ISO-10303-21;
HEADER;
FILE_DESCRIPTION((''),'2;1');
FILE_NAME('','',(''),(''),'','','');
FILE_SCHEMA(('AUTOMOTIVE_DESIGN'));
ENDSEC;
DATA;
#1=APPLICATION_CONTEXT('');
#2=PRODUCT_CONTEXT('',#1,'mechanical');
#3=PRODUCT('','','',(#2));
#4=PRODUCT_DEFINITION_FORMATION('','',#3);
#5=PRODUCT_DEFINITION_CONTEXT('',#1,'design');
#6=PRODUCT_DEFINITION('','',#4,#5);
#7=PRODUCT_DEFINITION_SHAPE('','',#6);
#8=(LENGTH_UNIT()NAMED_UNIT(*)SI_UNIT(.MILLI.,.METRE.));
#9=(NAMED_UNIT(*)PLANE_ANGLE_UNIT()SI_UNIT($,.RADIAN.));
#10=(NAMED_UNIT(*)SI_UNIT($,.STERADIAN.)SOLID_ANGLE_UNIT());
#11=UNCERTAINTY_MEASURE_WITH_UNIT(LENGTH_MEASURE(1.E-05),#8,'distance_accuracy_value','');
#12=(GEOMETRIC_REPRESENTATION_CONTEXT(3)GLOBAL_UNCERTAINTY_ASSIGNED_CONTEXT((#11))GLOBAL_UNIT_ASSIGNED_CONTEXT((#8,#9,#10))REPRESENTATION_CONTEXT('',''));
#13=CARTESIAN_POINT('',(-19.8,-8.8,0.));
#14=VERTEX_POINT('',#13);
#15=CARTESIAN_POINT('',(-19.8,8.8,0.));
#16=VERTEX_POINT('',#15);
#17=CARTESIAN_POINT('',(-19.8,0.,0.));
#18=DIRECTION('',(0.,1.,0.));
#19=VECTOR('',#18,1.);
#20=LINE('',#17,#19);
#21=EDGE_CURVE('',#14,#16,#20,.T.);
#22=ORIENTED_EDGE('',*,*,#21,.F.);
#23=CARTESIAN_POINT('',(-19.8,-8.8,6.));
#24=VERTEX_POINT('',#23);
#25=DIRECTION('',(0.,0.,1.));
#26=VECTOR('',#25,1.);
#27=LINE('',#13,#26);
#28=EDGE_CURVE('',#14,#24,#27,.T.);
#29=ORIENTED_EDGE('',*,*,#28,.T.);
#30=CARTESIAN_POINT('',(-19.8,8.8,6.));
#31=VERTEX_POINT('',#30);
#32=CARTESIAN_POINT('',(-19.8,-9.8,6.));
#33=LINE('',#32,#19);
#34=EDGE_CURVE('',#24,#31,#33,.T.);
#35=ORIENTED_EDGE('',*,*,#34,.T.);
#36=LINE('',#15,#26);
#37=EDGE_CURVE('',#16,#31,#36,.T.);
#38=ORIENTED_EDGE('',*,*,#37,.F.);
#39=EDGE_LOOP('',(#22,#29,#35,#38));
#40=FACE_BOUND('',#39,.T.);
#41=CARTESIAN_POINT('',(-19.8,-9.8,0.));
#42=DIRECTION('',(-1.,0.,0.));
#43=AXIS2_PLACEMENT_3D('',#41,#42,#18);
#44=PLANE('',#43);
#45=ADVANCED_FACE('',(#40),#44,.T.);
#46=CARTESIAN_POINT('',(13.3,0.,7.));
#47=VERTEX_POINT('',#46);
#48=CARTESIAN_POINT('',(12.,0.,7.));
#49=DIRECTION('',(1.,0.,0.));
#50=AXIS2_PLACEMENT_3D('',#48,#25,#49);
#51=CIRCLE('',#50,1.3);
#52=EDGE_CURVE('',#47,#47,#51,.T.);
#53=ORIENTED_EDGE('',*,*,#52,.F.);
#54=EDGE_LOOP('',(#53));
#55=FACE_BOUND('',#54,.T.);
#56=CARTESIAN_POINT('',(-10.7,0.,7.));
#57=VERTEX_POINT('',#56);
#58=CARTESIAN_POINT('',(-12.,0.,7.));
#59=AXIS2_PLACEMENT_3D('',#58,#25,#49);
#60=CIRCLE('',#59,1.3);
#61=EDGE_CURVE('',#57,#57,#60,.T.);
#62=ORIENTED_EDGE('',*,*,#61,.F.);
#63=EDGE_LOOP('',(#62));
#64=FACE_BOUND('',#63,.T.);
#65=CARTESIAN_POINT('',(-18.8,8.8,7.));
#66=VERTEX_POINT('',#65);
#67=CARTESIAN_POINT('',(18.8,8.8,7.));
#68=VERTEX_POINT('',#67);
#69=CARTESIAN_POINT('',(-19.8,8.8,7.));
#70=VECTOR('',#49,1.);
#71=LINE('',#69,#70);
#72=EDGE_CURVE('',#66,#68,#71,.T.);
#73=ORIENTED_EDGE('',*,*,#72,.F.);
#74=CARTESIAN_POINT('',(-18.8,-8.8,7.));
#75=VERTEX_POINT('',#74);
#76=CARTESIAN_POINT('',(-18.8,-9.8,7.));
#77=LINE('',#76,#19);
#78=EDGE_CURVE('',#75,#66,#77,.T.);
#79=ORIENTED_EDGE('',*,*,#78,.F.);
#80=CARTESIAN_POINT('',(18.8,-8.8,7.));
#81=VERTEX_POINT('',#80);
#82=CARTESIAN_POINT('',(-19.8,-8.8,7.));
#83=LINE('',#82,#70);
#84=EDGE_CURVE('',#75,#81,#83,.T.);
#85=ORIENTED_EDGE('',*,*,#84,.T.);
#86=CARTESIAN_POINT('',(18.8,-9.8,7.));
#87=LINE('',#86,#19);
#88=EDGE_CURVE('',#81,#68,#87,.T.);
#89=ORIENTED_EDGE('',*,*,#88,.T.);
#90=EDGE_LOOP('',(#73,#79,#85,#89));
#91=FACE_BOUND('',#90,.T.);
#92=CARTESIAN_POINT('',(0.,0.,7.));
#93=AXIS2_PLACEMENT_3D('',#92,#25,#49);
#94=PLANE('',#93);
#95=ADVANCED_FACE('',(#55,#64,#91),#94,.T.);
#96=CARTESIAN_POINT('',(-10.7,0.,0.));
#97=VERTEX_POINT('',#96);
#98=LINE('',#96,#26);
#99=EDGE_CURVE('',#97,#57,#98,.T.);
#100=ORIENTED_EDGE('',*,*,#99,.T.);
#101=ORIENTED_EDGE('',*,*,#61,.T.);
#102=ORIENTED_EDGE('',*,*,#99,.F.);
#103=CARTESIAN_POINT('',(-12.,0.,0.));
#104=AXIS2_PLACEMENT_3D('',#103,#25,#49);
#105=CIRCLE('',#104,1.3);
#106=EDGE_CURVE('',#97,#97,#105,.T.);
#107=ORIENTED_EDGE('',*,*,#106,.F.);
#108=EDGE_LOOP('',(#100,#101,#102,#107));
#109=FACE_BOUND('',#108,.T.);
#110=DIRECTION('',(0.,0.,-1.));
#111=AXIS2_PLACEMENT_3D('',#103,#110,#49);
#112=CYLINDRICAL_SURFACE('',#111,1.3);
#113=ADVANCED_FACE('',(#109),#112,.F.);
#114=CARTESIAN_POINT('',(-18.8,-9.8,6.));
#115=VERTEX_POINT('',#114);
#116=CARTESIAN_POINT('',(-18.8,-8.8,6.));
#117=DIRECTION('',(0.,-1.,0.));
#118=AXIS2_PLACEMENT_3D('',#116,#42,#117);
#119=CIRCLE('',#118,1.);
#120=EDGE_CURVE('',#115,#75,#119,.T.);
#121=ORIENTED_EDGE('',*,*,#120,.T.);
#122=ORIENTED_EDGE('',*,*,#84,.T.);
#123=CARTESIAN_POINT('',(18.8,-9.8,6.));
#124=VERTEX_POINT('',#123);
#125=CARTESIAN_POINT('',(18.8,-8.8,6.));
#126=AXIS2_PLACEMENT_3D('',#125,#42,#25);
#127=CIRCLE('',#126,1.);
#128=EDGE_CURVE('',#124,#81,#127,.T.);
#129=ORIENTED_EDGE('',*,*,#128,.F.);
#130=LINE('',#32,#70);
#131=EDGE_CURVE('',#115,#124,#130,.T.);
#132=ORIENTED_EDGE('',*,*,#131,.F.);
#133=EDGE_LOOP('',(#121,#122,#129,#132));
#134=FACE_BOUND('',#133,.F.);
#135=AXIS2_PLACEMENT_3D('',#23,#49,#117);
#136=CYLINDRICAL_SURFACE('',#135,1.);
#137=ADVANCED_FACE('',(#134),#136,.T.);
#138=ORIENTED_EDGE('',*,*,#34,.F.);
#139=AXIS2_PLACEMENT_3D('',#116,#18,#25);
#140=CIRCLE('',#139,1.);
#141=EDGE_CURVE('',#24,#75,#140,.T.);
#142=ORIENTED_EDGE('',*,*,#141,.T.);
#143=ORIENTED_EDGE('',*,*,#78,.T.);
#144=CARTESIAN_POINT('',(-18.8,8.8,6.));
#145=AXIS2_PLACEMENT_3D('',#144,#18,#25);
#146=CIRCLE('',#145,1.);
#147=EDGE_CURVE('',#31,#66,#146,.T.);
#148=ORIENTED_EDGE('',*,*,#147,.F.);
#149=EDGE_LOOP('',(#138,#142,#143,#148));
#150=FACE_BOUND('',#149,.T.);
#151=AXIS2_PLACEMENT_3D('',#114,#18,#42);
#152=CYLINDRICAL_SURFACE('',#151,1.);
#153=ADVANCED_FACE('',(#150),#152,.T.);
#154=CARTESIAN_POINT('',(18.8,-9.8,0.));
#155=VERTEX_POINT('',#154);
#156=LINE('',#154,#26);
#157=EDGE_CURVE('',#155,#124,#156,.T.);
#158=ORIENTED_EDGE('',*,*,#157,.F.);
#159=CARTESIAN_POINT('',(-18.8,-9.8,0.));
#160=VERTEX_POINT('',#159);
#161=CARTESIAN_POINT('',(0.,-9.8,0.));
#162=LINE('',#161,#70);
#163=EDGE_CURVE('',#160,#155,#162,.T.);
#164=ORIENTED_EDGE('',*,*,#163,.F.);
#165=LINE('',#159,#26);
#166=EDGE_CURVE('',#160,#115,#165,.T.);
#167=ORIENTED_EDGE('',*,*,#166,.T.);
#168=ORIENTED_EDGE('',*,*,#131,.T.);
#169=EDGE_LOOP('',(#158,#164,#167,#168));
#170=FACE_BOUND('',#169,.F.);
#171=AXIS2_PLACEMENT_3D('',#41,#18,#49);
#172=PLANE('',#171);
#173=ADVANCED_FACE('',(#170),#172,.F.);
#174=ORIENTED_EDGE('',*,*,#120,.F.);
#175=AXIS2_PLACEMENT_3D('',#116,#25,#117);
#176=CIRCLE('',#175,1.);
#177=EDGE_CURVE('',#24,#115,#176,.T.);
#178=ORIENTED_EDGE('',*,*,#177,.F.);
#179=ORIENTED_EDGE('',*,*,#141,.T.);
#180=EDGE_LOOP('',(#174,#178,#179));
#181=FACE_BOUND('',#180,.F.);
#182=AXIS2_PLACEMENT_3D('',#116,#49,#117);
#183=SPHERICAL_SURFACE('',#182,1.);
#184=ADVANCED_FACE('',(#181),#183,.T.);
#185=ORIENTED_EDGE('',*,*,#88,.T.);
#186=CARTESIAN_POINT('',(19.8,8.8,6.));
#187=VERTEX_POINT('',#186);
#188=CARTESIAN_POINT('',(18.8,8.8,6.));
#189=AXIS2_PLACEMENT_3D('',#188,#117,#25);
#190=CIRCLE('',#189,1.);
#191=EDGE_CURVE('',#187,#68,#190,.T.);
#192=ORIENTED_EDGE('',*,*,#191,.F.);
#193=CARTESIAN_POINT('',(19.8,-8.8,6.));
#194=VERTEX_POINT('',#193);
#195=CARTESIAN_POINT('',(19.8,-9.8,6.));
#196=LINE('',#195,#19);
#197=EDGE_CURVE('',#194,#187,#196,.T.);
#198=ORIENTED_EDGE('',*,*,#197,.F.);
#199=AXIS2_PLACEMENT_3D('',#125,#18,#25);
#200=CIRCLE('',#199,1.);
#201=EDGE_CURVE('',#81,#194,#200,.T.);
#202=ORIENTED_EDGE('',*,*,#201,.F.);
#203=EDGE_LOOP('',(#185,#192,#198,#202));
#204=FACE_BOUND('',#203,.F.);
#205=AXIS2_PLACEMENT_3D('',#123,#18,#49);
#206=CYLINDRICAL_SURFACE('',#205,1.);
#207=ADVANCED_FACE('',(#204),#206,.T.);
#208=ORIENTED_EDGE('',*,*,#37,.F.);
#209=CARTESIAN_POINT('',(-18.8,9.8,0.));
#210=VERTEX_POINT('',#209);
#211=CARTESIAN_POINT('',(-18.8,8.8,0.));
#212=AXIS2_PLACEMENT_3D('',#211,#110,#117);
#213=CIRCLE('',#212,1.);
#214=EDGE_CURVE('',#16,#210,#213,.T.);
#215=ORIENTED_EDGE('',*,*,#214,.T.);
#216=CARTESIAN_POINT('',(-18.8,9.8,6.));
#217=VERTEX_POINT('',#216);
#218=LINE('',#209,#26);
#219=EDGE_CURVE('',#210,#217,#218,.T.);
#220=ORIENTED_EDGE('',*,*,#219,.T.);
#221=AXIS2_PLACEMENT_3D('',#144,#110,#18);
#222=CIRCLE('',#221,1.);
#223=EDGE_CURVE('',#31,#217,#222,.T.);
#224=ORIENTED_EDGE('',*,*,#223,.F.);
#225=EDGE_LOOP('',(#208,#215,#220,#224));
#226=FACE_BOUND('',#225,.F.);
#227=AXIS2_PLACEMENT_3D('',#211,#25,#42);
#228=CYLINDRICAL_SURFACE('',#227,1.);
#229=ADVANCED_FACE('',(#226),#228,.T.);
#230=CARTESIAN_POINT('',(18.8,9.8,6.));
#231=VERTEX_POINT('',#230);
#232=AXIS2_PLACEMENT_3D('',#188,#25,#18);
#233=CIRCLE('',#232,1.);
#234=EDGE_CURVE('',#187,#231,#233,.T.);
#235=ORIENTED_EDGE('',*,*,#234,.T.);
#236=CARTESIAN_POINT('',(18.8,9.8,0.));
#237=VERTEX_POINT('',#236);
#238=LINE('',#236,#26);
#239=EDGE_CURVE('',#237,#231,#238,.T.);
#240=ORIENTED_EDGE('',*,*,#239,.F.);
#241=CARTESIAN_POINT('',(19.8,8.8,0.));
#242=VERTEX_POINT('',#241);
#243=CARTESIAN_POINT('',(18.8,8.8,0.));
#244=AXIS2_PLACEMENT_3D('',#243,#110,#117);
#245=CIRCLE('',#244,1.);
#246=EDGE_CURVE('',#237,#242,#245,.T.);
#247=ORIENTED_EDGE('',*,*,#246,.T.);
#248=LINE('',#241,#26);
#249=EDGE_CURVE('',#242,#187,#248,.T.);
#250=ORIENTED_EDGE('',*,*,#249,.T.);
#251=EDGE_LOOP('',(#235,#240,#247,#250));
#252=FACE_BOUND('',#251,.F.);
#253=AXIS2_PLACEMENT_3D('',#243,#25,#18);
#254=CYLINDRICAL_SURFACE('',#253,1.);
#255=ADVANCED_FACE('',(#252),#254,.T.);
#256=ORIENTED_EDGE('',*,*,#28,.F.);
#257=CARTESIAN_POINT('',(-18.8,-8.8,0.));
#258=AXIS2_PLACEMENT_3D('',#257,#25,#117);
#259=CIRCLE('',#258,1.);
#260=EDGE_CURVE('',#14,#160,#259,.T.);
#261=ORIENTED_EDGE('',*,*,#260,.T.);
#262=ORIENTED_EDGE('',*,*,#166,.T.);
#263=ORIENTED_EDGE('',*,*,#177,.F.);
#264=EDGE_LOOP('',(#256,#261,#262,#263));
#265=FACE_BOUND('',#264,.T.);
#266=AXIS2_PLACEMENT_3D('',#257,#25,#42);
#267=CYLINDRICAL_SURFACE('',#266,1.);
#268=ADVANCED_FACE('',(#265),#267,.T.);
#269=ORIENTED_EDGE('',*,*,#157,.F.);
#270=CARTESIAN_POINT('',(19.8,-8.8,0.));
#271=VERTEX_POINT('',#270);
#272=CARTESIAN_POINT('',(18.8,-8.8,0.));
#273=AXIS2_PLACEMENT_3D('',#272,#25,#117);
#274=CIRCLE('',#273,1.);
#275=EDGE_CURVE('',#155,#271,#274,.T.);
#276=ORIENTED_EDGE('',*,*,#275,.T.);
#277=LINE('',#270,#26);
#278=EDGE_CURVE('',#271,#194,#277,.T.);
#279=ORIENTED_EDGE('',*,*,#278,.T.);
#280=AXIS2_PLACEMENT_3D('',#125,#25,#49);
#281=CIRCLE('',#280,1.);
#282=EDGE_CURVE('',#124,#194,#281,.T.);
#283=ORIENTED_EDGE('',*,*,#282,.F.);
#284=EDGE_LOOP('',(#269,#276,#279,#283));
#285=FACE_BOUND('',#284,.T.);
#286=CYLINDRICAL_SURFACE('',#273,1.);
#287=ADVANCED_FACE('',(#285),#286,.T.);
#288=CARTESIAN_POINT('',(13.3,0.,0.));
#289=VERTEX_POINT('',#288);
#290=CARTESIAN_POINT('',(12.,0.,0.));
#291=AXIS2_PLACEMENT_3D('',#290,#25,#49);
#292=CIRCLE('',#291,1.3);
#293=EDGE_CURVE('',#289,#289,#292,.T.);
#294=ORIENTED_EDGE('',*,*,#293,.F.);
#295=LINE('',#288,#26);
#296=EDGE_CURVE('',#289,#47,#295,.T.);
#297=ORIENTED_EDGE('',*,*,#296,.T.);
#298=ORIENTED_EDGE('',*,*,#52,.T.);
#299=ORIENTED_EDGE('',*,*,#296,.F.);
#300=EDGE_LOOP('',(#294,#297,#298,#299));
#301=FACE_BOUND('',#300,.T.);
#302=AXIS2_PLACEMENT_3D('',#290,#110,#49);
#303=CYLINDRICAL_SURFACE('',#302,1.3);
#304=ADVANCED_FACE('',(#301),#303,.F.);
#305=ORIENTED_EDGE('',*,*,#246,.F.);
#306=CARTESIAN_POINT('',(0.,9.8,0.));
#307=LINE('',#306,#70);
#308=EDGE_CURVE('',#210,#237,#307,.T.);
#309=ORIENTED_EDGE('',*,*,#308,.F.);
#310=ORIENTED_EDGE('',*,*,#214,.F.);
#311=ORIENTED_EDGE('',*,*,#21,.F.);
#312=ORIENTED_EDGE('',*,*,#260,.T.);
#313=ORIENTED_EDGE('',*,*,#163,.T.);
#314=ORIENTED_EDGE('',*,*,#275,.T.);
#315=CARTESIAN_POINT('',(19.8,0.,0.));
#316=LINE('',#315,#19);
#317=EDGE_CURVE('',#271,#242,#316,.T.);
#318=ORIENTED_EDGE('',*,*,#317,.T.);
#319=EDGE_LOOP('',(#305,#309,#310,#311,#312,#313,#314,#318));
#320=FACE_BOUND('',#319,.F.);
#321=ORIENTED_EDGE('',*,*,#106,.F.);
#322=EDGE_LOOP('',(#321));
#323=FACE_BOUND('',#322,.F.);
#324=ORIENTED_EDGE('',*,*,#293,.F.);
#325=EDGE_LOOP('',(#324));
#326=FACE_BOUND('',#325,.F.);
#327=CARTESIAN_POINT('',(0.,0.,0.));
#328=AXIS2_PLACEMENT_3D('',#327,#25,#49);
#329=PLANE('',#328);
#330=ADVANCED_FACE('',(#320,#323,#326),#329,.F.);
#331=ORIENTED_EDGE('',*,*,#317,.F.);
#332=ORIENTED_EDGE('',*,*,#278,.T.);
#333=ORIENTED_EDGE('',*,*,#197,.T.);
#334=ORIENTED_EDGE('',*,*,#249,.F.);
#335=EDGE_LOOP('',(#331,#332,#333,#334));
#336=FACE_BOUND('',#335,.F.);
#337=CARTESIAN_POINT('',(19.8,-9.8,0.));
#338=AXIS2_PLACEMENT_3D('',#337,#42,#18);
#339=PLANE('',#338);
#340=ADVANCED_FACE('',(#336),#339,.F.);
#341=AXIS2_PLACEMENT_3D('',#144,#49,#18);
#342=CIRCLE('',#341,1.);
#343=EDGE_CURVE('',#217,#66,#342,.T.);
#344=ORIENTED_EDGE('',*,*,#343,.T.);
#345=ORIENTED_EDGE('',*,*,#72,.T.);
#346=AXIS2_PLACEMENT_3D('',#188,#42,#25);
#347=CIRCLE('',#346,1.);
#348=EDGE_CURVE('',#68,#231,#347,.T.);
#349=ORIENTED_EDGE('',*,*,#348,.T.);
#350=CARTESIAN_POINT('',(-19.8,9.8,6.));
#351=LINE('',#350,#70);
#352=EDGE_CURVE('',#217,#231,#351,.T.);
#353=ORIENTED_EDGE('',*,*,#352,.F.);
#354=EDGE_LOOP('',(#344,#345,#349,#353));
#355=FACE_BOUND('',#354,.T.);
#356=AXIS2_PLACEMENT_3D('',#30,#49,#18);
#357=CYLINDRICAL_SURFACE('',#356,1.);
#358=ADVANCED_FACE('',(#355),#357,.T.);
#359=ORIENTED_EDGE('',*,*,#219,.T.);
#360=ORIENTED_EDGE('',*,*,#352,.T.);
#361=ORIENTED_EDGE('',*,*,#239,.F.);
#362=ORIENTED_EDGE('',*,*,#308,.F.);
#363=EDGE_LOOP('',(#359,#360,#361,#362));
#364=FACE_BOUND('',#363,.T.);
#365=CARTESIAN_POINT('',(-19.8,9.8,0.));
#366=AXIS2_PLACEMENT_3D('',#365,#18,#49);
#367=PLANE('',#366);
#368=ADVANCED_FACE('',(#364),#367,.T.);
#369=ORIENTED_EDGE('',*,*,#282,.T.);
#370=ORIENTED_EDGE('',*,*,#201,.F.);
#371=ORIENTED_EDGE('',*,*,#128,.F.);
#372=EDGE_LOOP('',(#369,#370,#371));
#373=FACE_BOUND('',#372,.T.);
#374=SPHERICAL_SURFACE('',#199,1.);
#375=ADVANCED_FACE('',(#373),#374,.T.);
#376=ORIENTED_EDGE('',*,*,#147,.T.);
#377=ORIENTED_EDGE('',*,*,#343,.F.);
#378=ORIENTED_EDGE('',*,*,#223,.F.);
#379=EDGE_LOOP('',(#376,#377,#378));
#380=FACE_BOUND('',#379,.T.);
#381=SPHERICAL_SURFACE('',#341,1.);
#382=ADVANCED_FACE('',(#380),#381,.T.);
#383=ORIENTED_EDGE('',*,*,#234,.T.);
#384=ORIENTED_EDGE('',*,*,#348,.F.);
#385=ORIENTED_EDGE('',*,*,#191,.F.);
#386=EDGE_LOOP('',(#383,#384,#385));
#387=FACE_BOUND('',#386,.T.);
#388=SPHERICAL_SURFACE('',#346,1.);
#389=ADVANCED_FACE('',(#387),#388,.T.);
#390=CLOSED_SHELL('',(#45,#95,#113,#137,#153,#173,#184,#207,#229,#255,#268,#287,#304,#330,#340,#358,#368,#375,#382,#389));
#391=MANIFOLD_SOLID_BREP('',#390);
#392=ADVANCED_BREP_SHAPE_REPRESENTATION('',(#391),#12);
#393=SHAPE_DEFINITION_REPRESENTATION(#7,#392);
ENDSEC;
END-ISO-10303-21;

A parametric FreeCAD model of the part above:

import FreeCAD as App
import Part
import Sketcher
Q = App.Units.Quantity


def edges_at(feature, points):
    """Names of the edges that pass closest to the given points."""
    edges = feature.Shape.Edges
    near = lambda p: min(range(len(edges)), key=lambda i: edges[i].distToShape(Part.Vertex(*p))[0])
    return sorted({f"Edge{near(p) + 1}" for p in points})

doc = App.newDocument("Part")
body = doc.addObject("PartDesign::Body", "Body")

# Sketch on XY plane
sketch1 = body.newObject("Sketcher::SketchObject", "Sketch")
sketch1.AttachmentSupport = (doc.getObject("XY_Plane"), [""])
sketch1.MapMode = "FlatFace"
sketch1.addGeometry([
    Part.LineSegment(App.Vector(-19.8, 9.8, 0), App.Vector(-19.8, -9.8, 0)),  # 0
    Part.LineSegment(App.Vector(-19.8, -9.8, 0), App.Vector(19.8, -9.8, 0)),  # 1
    Part.LineSegment(App.Vector(19.8, -9.8, 0), App.Vector(19.8, 9.8, 0)),  # 2
    Part.LineSegment(App.Vector(19.8, 9.8, 0), App.Vector(-19.8, 9.8, 0)),  # 3
    Part.Circle(App.Vector(-12, 0, 0), App.Vector(0, 0, 1), 1.3),  # 4
    Part.Circle(App.Vector(12, 0, 0), App.Vector(0, 0, 1), 1.3),  # 5
], False)
sketch1.addConstraint([
    Sketcher.Constraint("Coincident", 0, 2, 1, 1),
    Sketcher.Constraint("Coincident", 1, 2, 2, 1),
    Sketcher.Constraint("Coincident", 2, 2, 3, 1),
    Sketcher.Constraint("Coincident", 3, 2, 0, 1),
    Sketcher.Constraint("Vertical", 0),
    Sketcher.Constraint("Horizontal", 1),
    Sketcher.Constraint("Vertical", 2),
    Sketcher.Constraint("Horizontal", 3),
    Sketcher.Constraint("Equal", 4, 5),
    Sketcher.Constraint("Symmetric", 4, 3, 5, 3, -1, 1),
    Sketcher.Constraint("Symmetric", 0, 2, 2, 2, -1, 1),
    Sketcher.Constraint("PointOnObject", 4, 3, -1),
    Sketcher.Constraint("Diameter", 4, Q("2.6 mm")),
    Sketcher.Constraint("DistanceX", 1, 1, 1, 2, Q("39.6 mm")),
    Sketcher.Constraint("DistanceY", 0, 2, 0, 1, Q("19.6 mm")),
    Sketcher.Constraint("DistanceX", 4, 3, -1, 1, Q("12 mm")),
])
pad1 = body.newObject("PartDesign::Pad", "Pad")
pad1.Profile = sketch1
pad1.Length = 7
doc.recompute()

fillet = body.newObject("PartDesign::Fillet", "Fillet")
fillet.Base = (pad1, edges_at(pad1, [
    (0, 9.8, 7),
    (19.8, 0, 7),
    (0, -9.8, 7),
    (19.8, 9.8, 3.5),
    (19.8, -9.8, 3.5),
    (-19.8, -9.8, 3.5),
    (-19.8, 9.8, 3.5),
    (-19.8, 0, 7),
]))
fillet.Radius = 1

doc.recompute()
